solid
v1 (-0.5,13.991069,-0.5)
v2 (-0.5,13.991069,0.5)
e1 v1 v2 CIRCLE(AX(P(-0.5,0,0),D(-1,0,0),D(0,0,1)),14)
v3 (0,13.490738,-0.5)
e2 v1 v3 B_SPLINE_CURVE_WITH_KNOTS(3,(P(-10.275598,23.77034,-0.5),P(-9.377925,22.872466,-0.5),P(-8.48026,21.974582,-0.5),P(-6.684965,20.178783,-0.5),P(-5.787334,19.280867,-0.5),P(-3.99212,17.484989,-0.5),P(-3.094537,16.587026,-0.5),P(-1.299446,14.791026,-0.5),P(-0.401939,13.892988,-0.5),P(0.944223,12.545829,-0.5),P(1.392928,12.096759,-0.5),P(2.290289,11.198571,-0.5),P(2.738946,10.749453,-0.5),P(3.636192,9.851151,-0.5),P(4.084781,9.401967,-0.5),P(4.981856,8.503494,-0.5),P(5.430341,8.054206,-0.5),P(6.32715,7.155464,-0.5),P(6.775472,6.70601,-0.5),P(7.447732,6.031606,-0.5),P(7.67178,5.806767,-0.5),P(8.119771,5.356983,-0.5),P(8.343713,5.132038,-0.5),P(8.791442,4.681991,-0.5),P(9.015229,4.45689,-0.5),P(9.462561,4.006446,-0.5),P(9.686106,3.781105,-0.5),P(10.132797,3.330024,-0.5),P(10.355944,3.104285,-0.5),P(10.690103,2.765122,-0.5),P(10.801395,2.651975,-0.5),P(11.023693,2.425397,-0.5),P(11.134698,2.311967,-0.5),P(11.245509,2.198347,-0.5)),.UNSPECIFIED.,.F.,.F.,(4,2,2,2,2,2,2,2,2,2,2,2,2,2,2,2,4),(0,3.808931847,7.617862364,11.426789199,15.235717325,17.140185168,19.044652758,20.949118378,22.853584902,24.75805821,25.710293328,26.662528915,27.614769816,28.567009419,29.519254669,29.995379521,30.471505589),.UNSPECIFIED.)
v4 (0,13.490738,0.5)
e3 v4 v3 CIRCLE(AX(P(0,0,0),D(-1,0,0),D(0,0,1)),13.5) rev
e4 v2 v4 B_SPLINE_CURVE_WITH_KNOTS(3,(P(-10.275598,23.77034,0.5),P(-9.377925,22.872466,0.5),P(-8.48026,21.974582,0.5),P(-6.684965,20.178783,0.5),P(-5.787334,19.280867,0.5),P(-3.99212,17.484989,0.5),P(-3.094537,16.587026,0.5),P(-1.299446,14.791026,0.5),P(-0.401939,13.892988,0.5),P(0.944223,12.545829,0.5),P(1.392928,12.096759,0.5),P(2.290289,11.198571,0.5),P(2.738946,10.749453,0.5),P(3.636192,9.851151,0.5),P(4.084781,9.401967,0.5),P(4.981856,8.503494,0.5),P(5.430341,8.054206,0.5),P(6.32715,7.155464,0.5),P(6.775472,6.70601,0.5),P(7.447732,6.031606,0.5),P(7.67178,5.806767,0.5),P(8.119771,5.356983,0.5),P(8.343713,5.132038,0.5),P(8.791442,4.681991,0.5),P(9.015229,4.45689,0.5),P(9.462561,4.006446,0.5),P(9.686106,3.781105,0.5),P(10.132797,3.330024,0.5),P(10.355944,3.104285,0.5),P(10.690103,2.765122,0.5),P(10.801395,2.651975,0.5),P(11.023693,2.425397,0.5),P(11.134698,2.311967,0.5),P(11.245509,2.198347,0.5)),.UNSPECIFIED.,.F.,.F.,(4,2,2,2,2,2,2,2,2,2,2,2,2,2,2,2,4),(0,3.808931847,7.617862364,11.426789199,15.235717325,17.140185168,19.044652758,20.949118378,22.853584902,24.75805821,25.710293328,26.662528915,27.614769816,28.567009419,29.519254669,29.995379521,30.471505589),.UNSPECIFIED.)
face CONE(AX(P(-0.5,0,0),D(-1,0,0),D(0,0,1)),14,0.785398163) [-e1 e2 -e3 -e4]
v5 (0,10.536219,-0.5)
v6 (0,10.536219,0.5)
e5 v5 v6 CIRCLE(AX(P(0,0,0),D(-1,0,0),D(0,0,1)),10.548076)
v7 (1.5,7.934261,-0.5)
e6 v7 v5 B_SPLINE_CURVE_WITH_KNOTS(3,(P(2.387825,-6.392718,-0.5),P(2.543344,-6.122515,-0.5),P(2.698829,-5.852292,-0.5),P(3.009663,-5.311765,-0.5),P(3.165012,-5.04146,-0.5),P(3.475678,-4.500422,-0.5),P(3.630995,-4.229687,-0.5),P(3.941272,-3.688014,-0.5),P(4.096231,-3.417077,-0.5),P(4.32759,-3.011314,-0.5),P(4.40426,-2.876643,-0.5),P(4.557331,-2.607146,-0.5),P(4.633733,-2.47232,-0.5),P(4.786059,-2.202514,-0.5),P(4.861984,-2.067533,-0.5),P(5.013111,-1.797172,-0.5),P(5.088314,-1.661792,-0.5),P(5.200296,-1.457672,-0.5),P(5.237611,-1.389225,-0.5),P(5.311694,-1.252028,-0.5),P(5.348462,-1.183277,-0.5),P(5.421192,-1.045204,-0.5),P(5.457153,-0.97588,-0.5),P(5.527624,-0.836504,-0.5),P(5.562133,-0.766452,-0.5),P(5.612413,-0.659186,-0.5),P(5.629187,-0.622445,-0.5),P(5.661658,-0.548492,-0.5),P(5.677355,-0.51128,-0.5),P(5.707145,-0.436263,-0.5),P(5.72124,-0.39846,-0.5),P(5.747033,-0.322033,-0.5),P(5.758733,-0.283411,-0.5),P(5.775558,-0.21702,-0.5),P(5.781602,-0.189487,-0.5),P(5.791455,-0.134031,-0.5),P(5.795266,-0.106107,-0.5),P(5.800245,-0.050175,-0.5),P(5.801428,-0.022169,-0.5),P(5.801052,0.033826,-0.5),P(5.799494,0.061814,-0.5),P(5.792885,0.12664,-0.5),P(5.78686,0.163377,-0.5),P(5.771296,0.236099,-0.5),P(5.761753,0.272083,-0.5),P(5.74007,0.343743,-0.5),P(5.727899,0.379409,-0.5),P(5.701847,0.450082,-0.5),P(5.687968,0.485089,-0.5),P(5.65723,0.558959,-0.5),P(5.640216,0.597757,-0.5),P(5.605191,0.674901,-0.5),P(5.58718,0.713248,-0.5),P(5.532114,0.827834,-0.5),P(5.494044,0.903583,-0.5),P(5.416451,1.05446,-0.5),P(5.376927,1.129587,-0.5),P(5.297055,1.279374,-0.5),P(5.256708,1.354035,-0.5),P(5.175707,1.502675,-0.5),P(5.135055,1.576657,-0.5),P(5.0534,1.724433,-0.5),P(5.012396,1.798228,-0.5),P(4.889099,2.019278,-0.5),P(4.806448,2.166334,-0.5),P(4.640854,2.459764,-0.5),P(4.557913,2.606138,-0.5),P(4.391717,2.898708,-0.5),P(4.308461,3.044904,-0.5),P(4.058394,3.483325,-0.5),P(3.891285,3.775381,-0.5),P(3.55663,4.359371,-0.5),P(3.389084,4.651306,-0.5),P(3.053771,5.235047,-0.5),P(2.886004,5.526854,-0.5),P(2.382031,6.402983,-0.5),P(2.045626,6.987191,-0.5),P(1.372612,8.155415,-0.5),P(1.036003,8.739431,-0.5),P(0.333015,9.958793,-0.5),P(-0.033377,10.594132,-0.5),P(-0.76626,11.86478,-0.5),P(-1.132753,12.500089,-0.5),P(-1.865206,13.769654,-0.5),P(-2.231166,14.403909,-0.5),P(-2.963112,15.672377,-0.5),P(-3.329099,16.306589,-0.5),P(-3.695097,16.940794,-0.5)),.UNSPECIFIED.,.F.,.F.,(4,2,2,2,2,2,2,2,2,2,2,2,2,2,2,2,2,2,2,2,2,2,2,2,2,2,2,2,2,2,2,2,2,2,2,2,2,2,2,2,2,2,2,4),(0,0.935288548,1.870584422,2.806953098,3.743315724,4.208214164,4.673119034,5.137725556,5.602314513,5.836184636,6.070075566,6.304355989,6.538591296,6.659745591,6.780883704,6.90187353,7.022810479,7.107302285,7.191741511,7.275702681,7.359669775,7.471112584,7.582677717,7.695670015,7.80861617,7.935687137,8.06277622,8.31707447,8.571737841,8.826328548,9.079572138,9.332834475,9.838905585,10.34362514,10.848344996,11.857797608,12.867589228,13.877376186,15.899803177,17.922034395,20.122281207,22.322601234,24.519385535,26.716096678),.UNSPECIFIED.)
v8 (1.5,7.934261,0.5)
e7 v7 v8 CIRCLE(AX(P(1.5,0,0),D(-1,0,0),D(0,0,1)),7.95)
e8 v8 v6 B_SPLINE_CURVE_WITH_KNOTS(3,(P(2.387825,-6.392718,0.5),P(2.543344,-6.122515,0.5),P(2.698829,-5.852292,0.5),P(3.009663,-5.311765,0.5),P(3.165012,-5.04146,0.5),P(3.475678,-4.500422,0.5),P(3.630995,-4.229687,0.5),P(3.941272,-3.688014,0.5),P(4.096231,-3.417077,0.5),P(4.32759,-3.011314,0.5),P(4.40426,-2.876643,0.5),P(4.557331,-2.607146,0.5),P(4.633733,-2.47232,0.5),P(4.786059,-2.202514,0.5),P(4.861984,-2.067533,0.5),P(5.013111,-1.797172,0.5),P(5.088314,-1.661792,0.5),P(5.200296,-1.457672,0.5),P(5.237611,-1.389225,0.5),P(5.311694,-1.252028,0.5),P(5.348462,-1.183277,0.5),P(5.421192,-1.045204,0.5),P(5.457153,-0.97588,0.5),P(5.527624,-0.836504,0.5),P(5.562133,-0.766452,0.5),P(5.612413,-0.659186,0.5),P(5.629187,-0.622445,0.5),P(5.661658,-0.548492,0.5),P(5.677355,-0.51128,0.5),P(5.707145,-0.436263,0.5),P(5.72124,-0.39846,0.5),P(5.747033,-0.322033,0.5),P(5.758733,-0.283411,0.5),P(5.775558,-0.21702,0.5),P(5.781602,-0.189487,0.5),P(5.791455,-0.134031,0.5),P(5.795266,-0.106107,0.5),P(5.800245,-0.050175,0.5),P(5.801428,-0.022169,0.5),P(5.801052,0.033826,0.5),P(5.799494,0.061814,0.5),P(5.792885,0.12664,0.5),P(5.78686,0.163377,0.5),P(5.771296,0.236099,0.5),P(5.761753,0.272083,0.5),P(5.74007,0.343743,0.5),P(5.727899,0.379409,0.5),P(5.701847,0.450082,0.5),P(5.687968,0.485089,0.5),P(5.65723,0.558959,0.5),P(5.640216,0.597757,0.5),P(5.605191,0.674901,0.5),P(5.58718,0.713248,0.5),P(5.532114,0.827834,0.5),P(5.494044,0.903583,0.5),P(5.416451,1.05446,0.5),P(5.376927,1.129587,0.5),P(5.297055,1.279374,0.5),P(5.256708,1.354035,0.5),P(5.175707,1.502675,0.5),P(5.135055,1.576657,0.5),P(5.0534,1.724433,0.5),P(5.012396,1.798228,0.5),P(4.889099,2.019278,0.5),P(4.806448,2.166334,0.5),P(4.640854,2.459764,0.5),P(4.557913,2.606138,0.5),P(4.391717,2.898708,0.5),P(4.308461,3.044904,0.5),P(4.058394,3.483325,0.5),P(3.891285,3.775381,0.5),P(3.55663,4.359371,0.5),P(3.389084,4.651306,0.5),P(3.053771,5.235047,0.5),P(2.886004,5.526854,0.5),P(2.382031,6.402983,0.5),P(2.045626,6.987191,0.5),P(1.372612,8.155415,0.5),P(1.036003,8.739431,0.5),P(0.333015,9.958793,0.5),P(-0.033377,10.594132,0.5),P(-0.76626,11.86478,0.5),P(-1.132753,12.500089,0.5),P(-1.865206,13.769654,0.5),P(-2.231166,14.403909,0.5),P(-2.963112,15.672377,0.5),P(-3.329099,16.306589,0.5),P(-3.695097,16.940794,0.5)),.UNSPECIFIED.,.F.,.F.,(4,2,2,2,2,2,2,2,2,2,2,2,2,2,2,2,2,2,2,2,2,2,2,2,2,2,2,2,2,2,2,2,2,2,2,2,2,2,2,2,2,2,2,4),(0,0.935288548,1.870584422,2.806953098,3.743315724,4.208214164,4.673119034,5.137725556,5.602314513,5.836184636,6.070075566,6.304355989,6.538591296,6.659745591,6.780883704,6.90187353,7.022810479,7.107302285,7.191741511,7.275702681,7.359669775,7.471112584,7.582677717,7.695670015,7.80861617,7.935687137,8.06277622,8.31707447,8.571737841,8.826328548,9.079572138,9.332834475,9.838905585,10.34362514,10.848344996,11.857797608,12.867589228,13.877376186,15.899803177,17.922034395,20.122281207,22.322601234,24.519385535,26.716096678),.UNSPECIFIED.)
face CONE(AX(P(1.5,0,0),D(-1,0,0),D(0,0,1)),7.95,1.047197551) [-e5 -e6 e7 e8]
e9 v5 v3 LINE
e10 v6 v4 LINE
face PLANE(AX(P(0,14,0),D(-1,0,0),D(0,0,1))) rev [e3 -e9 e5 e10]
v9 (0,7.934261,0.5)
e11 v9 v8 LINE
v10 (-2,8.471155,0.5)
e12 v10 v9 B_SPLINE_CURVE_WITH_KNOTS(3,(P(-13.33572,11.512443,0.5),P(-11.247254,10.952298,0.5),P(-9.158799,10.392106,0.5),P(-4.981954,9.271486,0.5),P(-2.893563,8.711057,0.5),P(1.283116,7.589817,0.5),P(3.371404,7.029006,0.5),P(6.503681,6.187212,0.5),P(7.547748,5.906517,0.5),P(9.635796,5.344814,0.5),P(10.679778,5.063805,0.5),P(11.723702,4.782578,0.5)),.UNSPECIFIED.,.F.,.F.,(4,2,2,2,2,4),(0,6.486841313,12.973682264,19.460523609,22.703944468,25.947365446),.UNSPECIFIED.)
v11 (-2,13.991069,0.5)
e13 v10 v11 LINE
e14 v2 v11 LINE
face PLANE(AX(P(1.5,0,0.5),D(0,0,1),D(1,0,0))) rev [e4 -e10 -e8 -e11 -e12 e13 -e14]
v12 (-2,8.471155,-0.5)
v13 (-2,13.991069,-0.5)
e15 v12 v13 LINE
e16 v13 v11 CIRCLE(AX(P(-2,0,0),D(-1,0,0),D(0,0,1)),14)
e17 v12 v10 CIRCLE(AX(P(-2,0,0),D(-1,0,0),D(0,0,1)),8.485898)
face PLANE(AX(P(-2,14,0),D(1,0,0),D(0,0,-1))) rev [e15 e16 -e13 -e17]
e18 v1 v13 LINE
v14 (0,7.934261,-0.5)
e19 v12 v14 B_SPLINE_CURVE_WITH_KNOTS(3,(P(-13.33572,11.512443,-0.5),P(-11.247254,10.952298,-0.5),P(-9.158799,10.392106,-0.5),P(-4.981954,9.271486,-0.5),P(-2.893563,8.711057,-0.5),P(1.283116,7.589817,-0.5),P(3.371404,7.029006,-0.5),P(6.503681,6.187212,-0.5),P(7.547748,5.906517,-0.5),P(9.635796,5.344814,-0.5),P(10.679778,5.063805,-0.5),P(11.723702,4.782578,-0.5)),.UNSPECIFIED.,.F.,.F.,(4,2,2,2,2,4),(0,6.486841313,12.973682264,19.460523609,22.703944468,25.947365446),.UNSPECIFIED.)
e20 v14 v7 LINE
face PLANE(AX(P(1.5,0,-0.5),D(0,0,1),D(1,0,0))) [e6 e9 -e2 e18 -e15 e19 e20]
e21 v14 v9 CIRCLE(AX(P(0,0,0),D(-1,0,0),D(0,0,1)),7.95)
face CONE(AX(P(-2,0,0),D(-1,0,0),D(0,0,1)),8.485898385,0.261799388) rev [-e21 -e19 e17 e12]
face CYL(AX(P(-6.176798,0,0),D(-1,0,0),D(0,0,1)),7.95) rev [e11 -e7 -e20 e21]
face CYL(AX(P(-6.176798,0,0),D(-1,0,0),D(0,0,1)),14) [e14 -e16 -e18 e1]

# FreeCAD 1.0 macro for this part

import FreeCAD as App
import Part
import Sketcher
from FreeCAD import Vector
Q = App.Units.Quantity


def edges_at(feature, points):
    """Names of the edges that pass closest to the given points."""
    edges = feature.Shape.Edges
    near = lambda p: min(range(len(edges)), key=lambda i: edges[i].distToShape(Part.Vertex(*p))[0])
    return sorted({f"Edge{near(p) + 1}" for p in points})

doc = App.newDocument("Part")
body = doc.addObject("PartDesign::Body", "Body")

sketch1 = doc.addObject("Sketcher::SketchObject", "Sketch")
body.addObject(sketch1)
sketch1.AttachmentSupport = (doc.XY_Plane, [""])
sketch1.MapMode = "FlatFace"
sketch1.addGeometry([
    Part.LineSegment(Vector(0, 7.95, 0), Vector(1.5, 7.95, 0)),
    Part.LineSegment(Vector(1.5, 7.95, 0), Vector(0, 10.548076, 0)),
    Part.LineSegment(Vector(0, 10.548076, 0), Vector(0, 14, 0)),
    Part.LineSegment(Vector(0, 14, 0), Vector(-2, 14, 0)),
    Part.LineSegment(Vector(-2, 14, 0), Vector(-2, 8.485898, 0)),
    Part.LineSegment(Vector(-2, 8.485898, 0), Vector(0, 7.95, 0)),
], False)
sketch1.addConstraint([
    Sketcher.Constraint("Coincident", 0, 2, 1, 1),
    Sketcher.Constraint("Coincident", 1, 2, 2, 1),
    Sketcher.Constraint("Coincident", 2, 2, 3, 1),
    Sketcher.Constraint("Coincident", 3, 2, 4, 1),
    Sketcher.Constraint("Coincident", 4, 2, 5, 1),
    Sketcher.Constraint("Coincident", 5, 2, 0, 1),
    Sketcher.Constraint("Horizontal", 0),
    Sketcher.Constraint("Vertical", 2),
    Sketcher.Constraint("Horizontal", 3),
    Sketcher.Constraint("Vertical", 4),
    Sketcher.Constraint("PointOnObject", 1, 2, -2),
    Sketcher.Constraint("PointOnObject", 5, 2, -2),
    Sketcher.Constraint("DistanceX", 3, 2, 3, 1, Q("2 mm")),
    Sketcher.Constraint("Angle", 1, Q("120 deg")),
    Sketcher.Constraint("Angle", 5, Q("-15 deg")),
    Sketcher.Constraint("Distance", 1, Q("3 mm")),
    Sketcher.Constraint("DistanceY", -1, 1, 2, 2, Q("14 mm")),
    Sketcher.Constraint("DistanceY", -1, 1, 0, 2, Q("7.95 mm")),
])
revolution = doc.addObject("PartDesign::Revolution", "Revolution")
body.addObject(revolution)
revolution.Profile = sketch1
revolution.ReferenceAxis = (sketch1, ["H_Axis"])
revolution.Angle = 360
doc.recompute()

chamfer = doc.addObject("PartDesign::Chamfer", "Chamfer")
body.addObject(chamfer)
chamfer.Base = (revolution, edges_at(revolution, [(0, -14, 0)]))
chamfer.Size = 0.5

sketch2 = doc.addObject("Sketcher::SketchObject", "Sketch001")
body.addObject(sketch2)
sketch2.AttachmentSupport = (doc.YZ_Plane, [""])
sketch2.MapMode = "FlatFace"
sketch2.AttachmentOffset = App.Placement(Vector(0, 0, -2), App.Rotation())
sketch2.addGeometry([
    Part.LineSegment(Vector(14.5, -0.5, 0), Vector(0, -0.5, 0)),
    Part.LineSegment(Vector(0, -0.5, 0), Vector(0, 0.5, 0)),
    Part.LineSegment(Vector(0, 0.5, 0), Vector(14.5, 0.5, 0)),
    Part.LineSegment(Vector(14.5, 0.5, 0), Vector(14.5, -0.5, 0)),
], False)
sketch2.addConstraint([
    Sketcher.Constraint("Coincident", 0, 2, 1, 1),
    Sketcher.Constraint("Coincident", 1, 2, 2, 1),
    Sketcher.Constraint("Coincident", 2, 2, 3, 1),
    Sketcher.Constraint("Coincident", 3, 2, 0, 1),
    Sketcher.Constraint("Horizontal", 0),
    Sketcher.Constraint("Vertical", 1),
    Sketcher.Constraint("Horizontal", 2),
    Sketcher.Constraint("Vertical", 3),
    Sketcher.Constraint("Symmetric", 0, 2, 1, 2, -1, 1),
    Sketcher.Constraint("DistanceY", 1, 1, 1, 2, Q("1 mm")),
    Sketcher.Constraint("DistanceX", 0, 2, 0, 1, Q("14.5 mm")),
])
pocket1 = doc.addObject("PartDesign::Pocket", "Pocket")
body.addObject(pocket1)
pocket1.Profile = sketch2
pocket1.Type = "ThroughAll"
pocket1.Reversed = True

doc.recompute()
